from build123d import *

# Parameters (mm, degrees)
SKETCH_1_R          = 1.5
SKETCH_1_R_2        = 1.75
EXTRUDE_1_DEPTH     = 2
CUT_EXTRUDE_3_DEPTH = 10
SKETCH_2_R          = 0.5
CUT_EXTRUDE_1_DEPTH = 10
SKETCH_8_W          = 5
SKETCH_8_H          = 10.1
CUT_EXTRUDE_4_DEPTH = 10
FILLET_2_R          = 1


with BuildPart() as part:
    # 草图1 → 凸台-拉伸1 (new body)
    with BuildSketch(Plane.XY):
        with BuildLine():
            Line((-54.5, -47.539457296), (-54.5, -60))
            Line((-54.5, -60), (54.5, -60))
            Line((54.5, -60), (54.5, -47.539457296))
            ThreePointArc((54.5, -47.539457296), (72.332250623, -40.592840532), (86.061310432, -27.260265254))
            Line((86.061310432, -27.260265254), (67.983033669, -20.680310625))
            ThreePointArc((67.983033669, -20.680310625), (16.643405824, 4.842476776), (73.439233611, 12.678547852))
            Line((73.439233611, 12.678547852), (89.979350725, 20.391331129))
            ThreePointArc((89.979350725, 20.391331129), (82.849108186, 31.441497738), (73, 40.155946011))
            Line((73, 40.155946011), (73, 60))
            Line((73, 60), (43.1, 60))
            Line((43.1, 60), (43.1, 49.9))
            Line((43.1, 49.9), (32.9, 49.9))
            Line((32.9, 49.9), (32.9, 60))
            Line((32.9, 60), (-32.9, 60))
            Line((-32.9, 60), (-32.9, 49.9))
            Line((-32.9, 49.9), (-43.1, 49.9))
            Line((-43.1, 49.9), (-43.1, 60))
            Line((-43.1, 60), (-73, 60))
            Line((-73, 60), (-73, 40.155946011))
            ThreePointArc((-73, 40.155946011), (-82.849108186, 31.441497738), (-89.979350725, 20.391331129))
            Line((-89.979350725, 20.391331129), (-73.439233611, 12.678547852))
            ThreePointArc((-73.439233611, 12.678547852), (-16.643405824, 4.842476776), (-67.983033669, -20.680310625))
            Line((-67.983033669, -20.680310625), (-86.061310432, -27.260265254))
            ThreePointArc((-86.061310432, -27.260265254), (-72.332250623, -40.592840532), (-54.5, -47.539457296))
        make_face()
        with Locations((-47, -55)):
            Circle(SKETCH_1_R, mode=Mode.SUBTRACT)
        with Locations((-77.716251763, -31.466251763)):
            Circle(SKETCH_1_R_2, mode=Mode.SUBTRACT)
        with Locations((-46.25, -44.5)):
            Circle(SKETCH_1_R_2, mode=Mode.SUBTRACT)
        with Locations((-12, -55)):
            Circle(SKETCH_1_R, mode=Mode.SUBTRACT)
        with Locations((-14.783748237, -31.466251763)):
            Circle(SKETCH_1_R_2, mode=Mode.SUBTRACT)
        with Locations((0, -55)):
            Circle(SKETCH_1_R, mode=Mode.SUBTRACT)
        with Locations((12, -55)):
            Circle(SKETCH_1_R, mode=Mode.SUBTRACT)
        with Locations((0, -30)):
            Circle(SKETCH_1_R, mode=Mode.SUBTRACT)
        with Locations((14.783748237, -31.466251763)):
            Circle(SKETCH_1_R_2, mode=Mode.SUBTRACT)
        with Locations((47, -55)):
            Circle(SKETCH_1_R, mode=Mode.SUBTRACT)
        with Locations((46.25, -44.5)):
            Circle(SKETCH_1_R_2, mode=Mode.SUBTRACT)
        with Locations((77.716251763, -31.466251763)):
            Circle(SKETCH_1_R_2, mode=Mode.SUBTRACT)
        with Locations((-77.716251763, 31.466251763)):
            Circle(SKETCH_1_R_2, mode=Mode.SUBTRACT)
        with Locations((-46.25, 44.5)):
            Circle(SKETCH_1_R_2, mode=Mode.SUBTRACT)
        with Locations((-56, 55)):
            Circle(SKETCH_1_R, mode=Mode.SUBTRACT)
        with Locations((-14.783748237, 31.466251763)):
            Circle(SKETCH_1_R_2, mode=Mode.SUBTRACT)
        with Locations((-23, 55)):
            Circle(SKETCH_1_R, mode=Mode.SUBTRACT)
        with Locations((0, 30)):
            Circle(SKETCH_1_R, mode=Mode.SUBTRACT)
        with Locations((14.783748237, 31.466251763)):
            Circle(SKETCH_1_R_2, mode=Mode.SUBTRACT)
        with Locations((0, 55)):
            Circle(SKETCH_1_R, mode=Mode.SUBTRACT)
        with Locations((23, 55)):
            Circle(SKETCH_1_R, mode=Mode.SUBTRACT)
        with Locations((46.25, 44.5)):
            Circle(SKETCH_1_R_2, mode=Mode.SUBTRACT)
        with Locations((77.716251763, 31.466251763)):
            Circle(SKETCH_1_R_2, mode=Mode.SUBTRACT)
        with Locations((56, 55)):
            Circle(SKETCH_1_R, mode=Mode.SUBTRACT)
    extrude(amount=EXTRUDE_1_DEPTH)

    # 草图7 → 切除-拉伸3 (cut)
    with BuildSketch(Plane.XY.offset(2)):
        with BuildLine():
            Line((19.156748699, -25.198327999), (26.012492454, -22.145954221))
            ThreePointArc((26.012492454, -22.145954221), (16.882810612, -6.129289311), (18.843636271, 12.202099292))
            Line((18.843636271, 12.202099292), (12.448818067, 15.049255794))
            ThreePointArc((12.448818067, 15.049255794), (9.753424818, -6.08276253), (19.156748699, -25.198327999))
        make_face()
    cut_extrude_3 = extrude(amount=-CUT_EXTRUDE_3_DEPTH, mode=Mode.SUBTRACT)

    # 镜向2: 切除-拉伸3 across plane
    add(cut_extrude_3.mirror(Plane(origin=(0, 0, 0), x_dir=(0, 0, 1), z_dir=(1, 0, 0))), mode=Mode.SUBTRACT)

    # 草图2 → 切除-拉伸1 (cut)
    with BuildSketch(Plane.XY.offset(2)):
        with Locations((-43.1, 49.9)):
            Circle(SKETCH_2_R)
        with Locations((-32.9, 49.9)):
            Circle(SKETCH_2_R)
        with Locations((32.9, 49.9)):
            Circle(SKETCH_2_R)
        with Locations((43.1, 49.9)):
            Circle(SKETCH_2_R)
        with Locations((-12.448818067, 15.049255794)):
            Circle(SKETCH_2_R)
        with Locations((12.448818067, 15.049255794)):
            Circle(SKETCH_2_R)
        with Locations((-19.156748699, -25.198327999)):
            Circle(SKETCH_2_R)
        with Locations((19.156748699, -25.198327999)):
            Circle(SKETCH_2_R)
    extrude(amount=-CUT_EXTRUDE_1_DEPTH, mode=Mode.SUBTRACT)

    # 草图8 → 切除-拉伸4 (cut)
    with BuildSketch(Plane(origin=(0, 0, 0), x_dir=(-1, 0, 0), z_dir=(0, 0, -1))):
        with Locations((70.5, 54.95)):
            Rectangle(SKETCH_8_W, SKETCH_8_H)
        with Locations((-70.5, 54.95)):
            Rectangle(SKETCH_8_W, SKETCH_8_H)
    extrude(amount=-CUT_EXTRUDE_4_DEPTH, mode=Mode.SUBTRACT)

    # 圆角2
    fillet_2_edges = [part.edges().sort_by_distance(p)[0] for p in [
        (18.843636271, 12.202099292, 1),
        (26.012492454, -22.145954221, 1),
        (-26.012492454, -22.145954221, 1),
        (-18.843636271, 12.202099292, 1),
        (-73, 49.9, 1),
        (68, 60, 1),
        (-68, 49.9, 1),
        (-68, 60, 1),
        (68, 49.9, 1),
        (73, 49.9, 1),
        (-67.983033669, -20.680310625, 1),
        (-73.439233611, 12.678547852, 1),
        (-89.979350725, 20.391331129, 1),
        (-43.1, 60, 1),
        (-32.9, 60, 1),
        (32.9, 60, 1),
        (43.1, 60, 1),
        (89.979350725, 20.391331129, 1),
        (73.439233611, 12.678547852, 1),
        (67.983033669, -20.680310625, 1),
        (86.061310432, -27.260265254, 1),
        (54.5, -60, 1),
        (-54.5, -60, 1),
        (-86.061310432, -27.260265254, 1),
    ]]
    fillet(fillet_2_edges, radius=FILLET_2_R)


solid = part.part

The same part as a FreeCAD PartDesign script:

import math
import FreeCAD as App
import Part
import Sketcher

V = App.Vector
Q = App.Units.Quantity


def edges_at(feature, points):
    """Names of the edges that pass closest to the given points."""
    edges = feature.Shape.Edges
    near = lambda p: min(range(len(edges)), key=lambda i: edges[i].distToShape(Part.Vertex(*p))[0])
    return sorted({f"Edge{near(p) + 1}" for p in points})

doc = App.newDocument("Part")
params = doc.addObject("Spreadsheet::Sheet", "Params")
for row, (alias, value) in enumerate([
    ("sketch1_diameter", "3 mm"),
    ("sketch1_radius", "30 mm"),
    ("sketch1_diameter2", "3.5 mm"),
    ("sketch1_width", "109 mm"),
    ("sketch1_radius2", "48.25 mm"),
    ("pad1_length", "2 mm"),
    ("sketch2_radius", "30 mm"),
    ("sketch2_radius2", "37 mm"),
    ("pocket1_length", "10 mm"),
    ("sketch3_diameter", "1 mm"),
    ("pocket2_length", "10 mm"),
    ("sketch4_width", "5 mm"),
    ("sketch4_height", "10.1 mm"),
    ("pocket3_length", "10 mm"),
    ("fillet_radius", "1 mm"),
], start=1):
    params.set(f"A{row}", alias)
    params.set(f"B{row}", "=" + value)
    params.setAlias(f"B{row}", alias)

body = doc.addObject("PartDesign::Body", "Body")

# Sketch on XY plane
sketch1 = body.newObject("Sketcher::SketchObject", "Sketch")
sketch1.AttachmentSupport = (doc.getObject("XY_Plane"), [""])
sketch1.MapMode = "FlatFace"
sketch1.addGeometry([
    Part.LineSegment(V(-54.5, -47.539457, 0), V(-54.5, -60, 0)),  # 0
    Part.LineSegment(V(-54.5, -60, 0), V(54.5, -60, 0)),  # 1
    Part.LineSegment(V(54.5, -60, 0), V(54.5, -47.539457, 0)),  # 2
    Part.ArcOfCircle(Part.Circle(V(46.25, 0, 0), V(0, 0, 1), 48.25), math.radians(-80.154938), math.radians(-34.400874)),  # 3
    Part.LineSegment(V(86.06131, -27.260265, 0), V(67.983034, -20.680311, 0)),  # 4
    Part.ArcOfCircle(Part.Circle(V(46.25, 0, 0), V(0, 0, 1), 30), math.radians(25), math.radians(316.421822)),  # 5
    Part.LineSegment(V(73.439234, 12.678548, 0), V(89.979351, 20.391331, 0)),  # 6
    Part.ArcOfCircle(Part.Circle(V(46.25, 0, 0), V(0, 0, 1), 48.25), math.radians(25), math.radians(56.330316)),  # 7
    Part.LineSegment(V(73, 40.155946, 0), V(73, 60, 0)),  # 8
    Part.LineSegment(V(73, 60, 0), V(43.1, 60, 0)),  # 9
    Part.LineSegment(V(43.1, 60, 0), V(43.1, 49.9, 0)),  # 10
    Part.LineSegment(V(43.1, 49.9, 0), V(32.9, 49.9, 0)),  # 11
    Part.LineSegment(V(32.9, 49.9, 0), V(32.9, 60, 0)),  # 12
    Part.LineSegment(V(32.9, 60, 0), V(-32.9, 60, 0)),  # 13
    Part.LineSegment(V(-32.9, 60, 0), V(-32.9, 49.9, 0)),  # 14
    Part.LineSegment(V(-32.9, 49.9, 0), V(-43.1, 49.9, 0)),  # 15
    Part.LineSegment(V(-43.1, 49.9, 0), V(-43.1, 60, 0)),  # 16
    Part.LineSegment(V(-43.1, 60, 0), V(-73, 60, 0)),  # 17
    Part.LineSegment(V(-73, 60, 0), V(-73, 40.155946, 0)),  # 18
    Part.ArcOfCircle(Part.Circle(V(-46.25, 0, 0), V(0, 0, 1), 48.25), math.radians(123.669684), math.radians(155)),  # 19
    Part.LineSegment(V(-89.979351, 20.391331, 0), V(-73.439234, 12.678548, 0)),  # 20
    Part.ArcOfCircle(Part.Circle(V(-46.25, 0, 0), V(0, 0, 1), 30), math.radians(-136.421822), math.radians(155)),  # 21
    Part.LineSegment(V(-67.983034, -20.680311, 0), V(-86.06131, -27.260265, 0)),  # 22
    Part.ArcOfCircle(Part.Circle(V(-46.25, 0, 0), V(0, 0, 1), 48.25), math.radians(-145.599126), math.radians(-99.845062)),  # 23
    Part.Circle(V(-47, -55, 0), V(0, 0, 1), 1.5),  # 24
    Part.Circle(V(-46.25, -44.5, 0), V(0, 0, 1), 1.75),  # 25
    Part.Circle(V(-77.716252, -31.466252, 0), V(0, 0, 1), 1.75),  # 26
    Part.Circle(V(-12, -55, 0), V(0, 0, 1), 1.5),  # 27
    Part.Circle(V(-14.783748, -31.466252, 0), V(0, 0, 1), 1.75),  # 28
    Part.Circle(V(0, -55, 0), V(0, 0, 1), 1.5),  # 29
    Part.Circle(V(12, -55, 0), V(0, 0, 1), 1.5),  # 30
    Part.Circle(V(0, -30, 0), V(0, 0, 1), 1.5),  # 31
    Part.Circle(V(14.783748, -31.466252, 0), V(0, 0, 1), 1.75),  # 32
    Part.Circle(V(47, -55, 0), V(0, 0, 1), 1.5),  # 33
    Part.Circle(V(46.25, -44.5, 0), V(0, 0, 1), 1.75),  # 34
    Part.Circle(V(77.716252, -31.466252, 0), V(0, 0, 1), 1.75),  # 35
    Part.Circle(V(-77.716252, 31.466252, 0), V(0, 0, 1), 1.75),  # 36
    Part.Circle(V(-46.25, 44.5, 0), V(0, 0, 1), 1.75),  # 37
    Part.Circle(V(-56, 55, 0), V(0, 0, 1), 1.5),  # 38
    Part.Circle(V(-14.783748, 31.466252, 0), V(0, 0, 1), 1.75),  # 39
    Part.Circle(V(-23, 55, 0), V(0, 0, 1), 1.5),  # 40
    Part.Circle(V(0, 30, 0), V(0, 0, 1), 1.5),  # 41
    Part.Circle(V(14.783748, 31.466252, 0), V(0, 0, 1), 1.75),  # 42
    Part.Circle(V(0, 55, 0), V(0, 0, 1), 1.5),  # 43
    Part.Circle(V(23, 55, 0), V(0, 0, 1), 1.5),  # 44
    Part.Circle(V(77.716252, 31.466252, 0), V(0, 0, 1), 1.75),  # 45
    Part.Circle(V(46.25, 44.5, 0), V(0, 0, 1), 1.75),  # 46
    Part.Circle(V(56, 55, 0), V(0, 0, 1), 1.5),  # 47
], False)
sketch1.addConstraint([
    Sketcher.Constraint("Coincident", 0, 2, 1, 1),
    Sketcher.Constraint("Coincident", 1, 2, 2, 1),
    Sketcher.Constraint("Coincident", 2, 2, 3, 1),
    Sketcher.Constraint("Coincident", 3, 2, 4, 1),
    Sketcher.Constraint("Coincident", 4, 2, 5, 2),
    Sketcher.Constraint("Coincident", 5, 1, 6, 1),
    Sketcher.Constraint("Coincident", 6, 2, 7, 1),
    Sketcher.Constraint("Coincident", 7, 2, 8, 1),
    Sketcher.Constraint("Coincident", 8, 2, 9, 1),
    Sketcher.Constraint("Coincident", 9, 2, 10, 1),
    Sketcher.Constraint("Coincident", 10, 2, 11, 1),
    Sketcher.Constraint("Coincident", 11, 2, 12, 1),
    Sketcher.Constraint("Coincident", 12, 2, 13, 1),
    Sketcher.Constraint("Coincident", 13, 2, 14, 1),
    Sketcher.Constraint("Coincident", 14, 2, 15, 1),
    Sketcher.Constraint("Coincident", 15, 2, 16, 1),
    Sketcher.Constraint("Coincident", 16, 2, 17, 1),
    Sketcher.Constraint("Coincident", 17, 2, 18, 1),
    Sketcher.Constraint("Coincident", 18, 2, 19, 1),
    Sketcher.Constraint("Coincident", 19, 2, 20, 1),
    Sketcher.Constraint("Coincident", 20, 2, 21, 2),
    Sketcher.Constraint("Coincident", 21, 1, 22, 1),
    Sketcher.Constraint("Coincident", 22, 2, 23, 1),
    Sketcher.Constraint("Coincident", 23, 2, 0, 1),
    Sketcher.Constraint("Vertical", 0),
    Sketcher.Constraint("Horizontal", 1),
    Sketcher.Constraint("Vertical", 2),
    Sketcher.Constraint("Vertical", 8),
    Sketcher.Constraint("Horizontal", 9),
    Sketcher.Constraint("Vertical", 10),
    Sketcher.Constraint("Horizontal", 11),
    Sketcher.Constraint("Vertical", 12),
    Sketcher.Constraint("Horizontal", 13),
    Sketcher.Constraint("Vertical", 14),
    Sketcher.Constraint("Horizontal", 15),
    Sketcher.Constraint("Vertical", 16),
    Sketcher.Constraint("Horizontal", 17),
    Sketcher.Constraint("Vertical", 18),
    Sketcher.Constraint("Coincident", 5, 3, 3, 3),
    Sketcher.Constraint("Coincident", 7, 3, 3, 3),
    Sketcher.Constraint("Coincident", 21, 3, 19, 3),
    Sketcher.Constraint("Coincident", 23, 3, 19, 3),
    Sketcher.Constraint("Equal", 3, 7),
    Sketcher.Constraint("Equal", 7, 19),
    Sketcher.Constraint("Equal", 5, 21),
    Sketcher.Constraint("Equal", 19, 23),
    Sketcher.Constraint("Equal", 25, 26),
    Sketcher.Constraint("Equal", 24, 27),
    Sketcher.Constraint("Equal", 26, 28),
    Sketcher.Constraint("Equal", 27, 29),
    Sketcher.Constraint("Equal", 29, 30),
    Sketcher.Constraint("Equal", 30, 31),
    Sketcher.Constraint("Equal", 28, 32),
    Sketcher.Constraint("Equal", 31, 33),
    Sketcher.Constraint("Equal", 32, 34),
    Sketcher.Constraint("Equal", 34, 35),
    Sketcher.Constraint("Equal", 35, 36),
    Sketcher.Constraint("Equal", 36, 37),
    Sketcher.Constraint("Equal", 33, 38),
    Sketcher.Constraint("Equal", 37, 39),
    Sketcher.Constraint("Equal", 38, 40),
    Sketcher.Constraint("Equal", 40, 41),
    Sketcher.Constraint("Equal", 39, 42),
    Sketcher.Constraint("Equal", 41, 43),
    Sketcher.Constraint("Equal", 43, 44),
    Sketcher.Constraint("Equal", 42, 45),
    Sketcher.Constraint("Equal", 45, 46),
    Sketcher.Constraint("Equal", 44, 47),
    Sketcher.Constraint("Symmetric", 3, 3, 19, 3, -1, 1),
    Sketcher.Constraint("Symmetric", 35, 3, 36, 3, -1, 1),
    Sketcher.Constraint("Symmetric", 34, 3, 37, 3, -1, 1),
    Sketcher.Constraint("Symmetric", 32, 3, 39, 3, -1, 1),
    Sketcher.Constraint("Symmetric", 31, 3, 41, 3, -1, 1),
    Sketcher.Constraint("Symmetric", 28, 3, 42, 3, -1, 1),
    Sketcher.Constraint("Symmetric", 29, 3, 43, 3, -1, 1),
    Sketcher.Constraint("Symmetric", 26, 3, 45, 3, -1, 1),
    Sketcher.Constraint("Symmetric", 25, 3, 46, 3, -1, 1),
    Sketcher.Constraint("Symmetric", 27, 3, 30, 3, -2),
    Sketcher.Constraint("Symmetric", 28, 3, 32, 3, -2),
    Sketcher.Constraint("Symmetric", 24, 3, 33, 3, -2),
    Sketcher.Constraint("Symmetric", 25, 3, 34, 3, -2),
    Sketcher.Constraint("Symmetric", 26, 3, 35, 3, -2),
    Sketcher.Constraint("Symmetric", 40, 3, 44, 3, -2),
    Sketcher.Constraint("Symmetric", 38, 3, 47, 3, -2),
    Sketcher.Constraint("Symmetric", 11, 2, 14, 2, -2),
    Sketcher.Constraint("Symmetric", 9, 2, 16, 2, -2),
    Sketcher.Constraint("Symmetric", 7, 2, 18, 2, -2),
    Sketcher.Constraint("PointOnObject", 29, 3, -2),
    Sketcher.Constraint("PointOnObject", 31, 3, -2),
    Sketcher.Constraint("Horizontal", 24, 3, 27, 3),
    Sketcher.Constraint("Horizontal", 26, 3, 28, 3),
    Sketcher.Constraint("Horizontal", 27, 3, 29, 3),
    Sketcher.Constraint("Horizontal", 38, 3, 40, 3),
    Sketcher.Constraint("Horizontal", 40, 3, 43, 3),
    Sketcher.Constraint("Horizontal", 9, 2, 12, 2),
    Sketcher.Constraint("Horizontal", 6, 2, 19, 2),
    Sketcher.Constraint("Horizontal", 5, 1, 20, 2),
    Sketcher.Constraint("Horizontal", 4, 2, 21, 1),
    Sketcher.Constraint("Horizontal", 3, 2, 22, 2),
    Sketcher.Constraint("Horizontal", 2, 2, 23, 2),
    Sketcher.Constraint("Vertical", 23, 3, 25, 3),
    Sketcher.Constraint("Diameter", 24, 3.0),
    Sketcher.Constraint("Radius", 5, 30.0),
    Sketcher.Constraint("Diameter", 25, 3.5),
    Sketcher.Constraint("DistanceX", 1, 1, 1, 2, 109.0),
    Sketcher.Constraint("Angle", 4, Q("160 deg")),
    Sketcher.Constraint("Angle", 6, Q("25 deg")),
    Sketcher.Constraint("Radius", 3, 48.25),
    Sketcher.Constraint("DistanceX", 9, 2, 9, 1, 29.9),
    Sketcher.Constraint("DistanceX", 11, 2, 11, 1, 10.2),
    Sketcher.Constraint("DistanceX", 13, 2, 13, 1, 65.8),
    Sketcher.Constraint("DistanceY", 10, 2, 10, 1, 10.1),
    Sketcher.Constraint("DistanceX", 24, 3, -1, 1, 47.0),
    Sketcher.Constraint("DistanceY", 24, 3, -1, 1, 55.0),
    Sketcher.Constraint("DistanceX", 27, 3, -1, 1, 12.0),
    Sketcher.Constraint("DistanceY", 31, 3, -1, 1, 30.0),
    Sketcher.Constraint("DistanceX", 38, 3, -1, 1, 56.0),
    Sketcher.Constraint("DistanceX", 40, 3, -1, 1, 23.0),
    Sketcher.Constraint("DistanceY", 0, 2, -1, 1, 60.0),
    Sketcher.Constraint("DistanceY", -1, 1, 8, 2, 60.0),
    Sketcher.Constraint("DistanceY", 25, 3, -1, 1, 44.5),
    Sketcher.Constraint("DistanceX", 19, 3, 7, 3, 92.5),
    Sketcher.Constraint("Distance", 4, 19.2385),
    Sketcher.Constraint("DistanceX", 4, 2, 5, 1, 5.4562),
    Sketcher.Constraint("DistanceX", 45, 3, 6, 2, 12.263099),
    Sketcher.Constraint("DistanceY", 26, 3, -1, 1, 31.466252),
    Sketcher.Constraint("DistanceX", 28, 3, -1, 1, 14.783748),
])
sketch1.setExpression("Constraints[101]", "Params.sketch1_diameter")
sketch1.setExpression("Constraints[102]", "Params.sketch1_radius")
sketch1.setExpression("Constraints[103]", "Params.sketch1_diameter2")
sketch1.setExpression("Constraints[104]", "Params.sketch1_width")
sketch1.setExpression("Constraints[107]", "Params.sketch1_radius2")
pad1 = body.newObject("PartDesign::Pad", "Pad")
pad1.Profile = sketch1
pad1.setExpression("Length", "Params.pad1_length")

# Sketch on XY plane
sketch2 = body.newObject("Sketcher::SketchObject", "Sketch001")
sketch2.AttachmentSupport = (doc.getObject("XY_Plane"), [""])
sketch2.MapMode = "FlatFace"
sketch2.AttachmentOffset = App.Placement(V(0, 0, 2), App.Rotation())
sketch2.addGeometry([
    Part.LineSegment(V(19.156749, -25.198328, 0), V(26.012492, -22.145954, 0)),
    Part.ArcOfCircle(Part.Circle(V(46.25, 0, 0), V(0, 0, 1), 30), math.radians(156), math.radians(227.578178)),
    Part.LineSegment(V(18.843636, 12.202099, 0), V(12.448818, 15.049256, 0)),
    Part.ArcOfCircle(Part.Circle(V(46.25, 0, 0), V(0, 0, 1), 37), math.radians(156), math.radians(222.924644)),
], False)
sketch2.addConstraint([
    Sketcher.Constraint("Coincident", 0, 2, 1, 2),
    Sketcher.Constraint("Coincident", 1, 1, 2, 1),
    Sketcher.Constraint("Coincident", 2, 2, 3, 1),
    Sketcher.Constraint("Coincident", 3, 2, 0, 1),
    Sketcher.Constraint("Coincident", 3, 3, 1, 3),
    Sketcher.Constraint("PointOnObject", 1, 3, -1),
    Sketcher.Constraint("Radius", 1, 30.0),
    Sketcher.Constraint("Radius", 3, 37.0),
    Sketcher.Constraint("Angle", 0, Q("24 deg")),
    Sketcher.Constraint("Angle", 2, Q("156 deg")),
    Sketcher.Constraint("DistanceX", -1, 1, 1, 3, 46.25),
    Sketcher.Constraint("DistanceY", -1, 1, 1, 1, 12.202099),
    Sketcher.Constraint("DistanceX", -1, 1, 3, 2, 19.156749),
])
sketch2.setExpression("Constraints[6]", "Params.sketch2_radius")
sketch2.setExpression("Constraints[7]", "Params.sketch2_radius2")
pocket1 = body.newObject("PartDesign::Pocket", "Pocket")
pocket1.Profile = sketch2
pocket1.setExpression("Length", "Params.pocket1_length")
doc.recompute()

mirrored = body.newObject("PartDesign::Mirrored", "Mirrored")
mirrored.Originals = [pocket1]
mirrored.MirrorPlane = (doc.getObject("YZ_Plane"), [""])
body.Tip = mirrored

# Sketch on XY plane
sketch3 = body.newObject("Sketcher::SketchObject", "Sketch002")
sketch3.AttachmentSupport = (doc.getObject("XY_Plane"), [""])
sketch3.MapMode = "FlatFace"
sketch3.AttachmentOffset = App.Placement(V(0, 0, 2), App.Rotation())
sketch3.addGeometry([
    Part.Circle(V(-43.1, 49.9, 0), V(0, 0, 1), 0.5),  # 0
    Part.Circle(V(-32.9, 49.9, 0), V(0, 0, 1), 0.5),  # 1
    Part.Circle(V(32.9, 49.9, 0), V(0, 0, 1), 0.5),  # 2
    Part.Circle(V(43.1, 49.9, 0), V(0, 0, 1), 0.5),  # 3
    Part.Circle(V(-12.448818, 15.049256, 0), V(0, 0, 1), 0.5),  # 4
    Part.Circle(V(12.448818, 15.049256, 0), V(0, 0, 1), 0.5),  # 5
    Part.Circle(V(-19.156749, -25.198328, 0), V(0, 0, 1), 0.5),  # 6
    Part.Circle(V(19.156749, -25.198328, 0), V(0, 0, 1), 0.5),  # 7
], False)
sketch3.addConstraint([
    Sketcher.Constraint("Equal", 0, 1),
    Sketcher.Constraint("Equal", 1, 2),
    Sketcher.Constraint("Equal", 2, 3),
    Sketcher.Constraint("Equal", 3, 4),
    Sketcher.Constraint("Equal", 4, 5),
    Sketcher.Constraint("Equal", 5, 6),
    Sketcher.Constraint("Equal", 6, 7),
    Sketcher.Constraint("Symmetric", 1, 3, 2, 3, -2),
    Sketcher.Constraint("Symmetric", 0, 3, 3, 3, -2),
    Sketcher.Constraint("Symmetric", 4, 3, 5, 3, -2),
    Sketcher.Constraint("Symmetric", 6, 3, 7, 3, -2),
    Sketcher.Constraint("Horizontal", 0, 3, 1, 3),
    Sketcher.Constraint("Diameter", 0, 1.0),
    Sketcher.Constraint("DistanceX", 0, 3, 2, 3, 76.0),
    Sketcher.Constraint("DistanceX", 0, 3, -1, 1, 43.1),
    Sketcher.Constraint("DistanceY", -1, 1, 0, 3, 49.9),
    Sketcher.Constraint("DistanceX", 4, 3, -1, 1, 12.448818),
    Sketcher.Constraint("DistanceX", 6, 3, -1, 1, 19.156749),
    Sketcher.Constraint("DistanceY", -1, 1, 4, 3, 15.049256),
    Sketcher.Constraint("DistanceY", 6, 3, -1, 1, 25.198328),
])
sketch3.setExpression("Constraints[12]", "Params.sketch3_diameter")
pocket2 = body.newObject("PartDesign::Pocket", "Pocket001")
pocket2.Profile = sketch3
pocket2.setExpression("Length", "Params.pocket2_length")

# Sketch on XY plane
sketch4 = body.newObject("Sketcher::SketchObject", "Sketch003")
sketch4.AttachmentSupport = (doc.getObject("XY_Plane"), [""])
sketch4.MapMode = "FlatFace"
sketch4.addGeometry([
    Part.LineSegment(V(-68, 60, 0), V(-68, 49.9, 0)),  # 0
    Part.LineSegment(V(-68, 49.9, 0), V(-73, 49.9, 0)),  # 1
    Part.LineSegment(V(-73, 49.9, 0), V(-73, 60, 0)),  # 2
    Part.LineSegment(V(-73, 60, 0), V(-68, 60, 0)),  # 3
    Part.LineSegment(V(73, 60, 0), V(73, 49.9, 0)),  # 4
    Part.LineSegment(V(73, 49.9, 0), V(68, 49.9, 0)),  # 5
    Part.LineSegment(V(68, 49.9, 0), V(68, 60, 0)),  # 6
    Part.LineSegment(V(68, 60, 0), V(73, 60, 0)),  # 7
], False)
sketch4.addConstraint([
    Sketcher.Constraint("Coincident", 0, 2, 1, 1),
    Sketcher.Constraint("Coincident", 1, 2, 2, 1),
    Sketcher.Constraint("Coincident", 2, 2, 3, 1),
    Sketcher.Constraint("Coincident", 3, 2, 0, 1),
    Sketcher.Constraint("Coincident", 4, 2, 5, 1),
    Sketcher.Constraint("Coincident", 5, 2, 6, 1),
    Sketcher.Constraint("Coincident", 6, 2, 7, 1),
    Sketcher.Constraint("Coincident", 7, 2, 4, 1),
    Sketcher.Constraint("Vertical", 0),
    Sketcher.Constraint("Horizontal", 1),
    Sketcher.Constraint("Vertical", 2),
    Sketcher.Constraint("Horizontal", 3),
    Sketcher.Constraint("Vertical", 4),
    Sketcher.Constraint("Horizontal", 5),
    Sketcher.Constraint("Vertical", 6),
    Sketcher.Constraint("Horizontal", 7),
    Sketcher.Constraint("Symmetric", 1, 2, 4, 2, -2),
    Sketcher.Constraint("Symmetric", 3, 2, 6, 2, -2),
    Sketcher.Constraint("DistanceX", 1, 2, 1, 1, 5.0),
    Sketcher.Constraint("DistanceY", 0, 2, 0, 1, 10.1),
    Sketcher.Constraint("DistanceX", 0, 2, -1, 1, 68.0),
    Sketcher.Constraint("DistanceY", -1, 1, 2, 2, 60.0),
])
sketch4.setExpression("Constraints[18]", "Params.sketch4_width")
sketch4.setExpression("Constraints[19]", "Params.sketch4_height")
pocket3 = body.newObject("PartDesign::Pocket", "Pocket002")
pocket3.Profile = sketch4
pocket3.setExpression("Length", "Params.pocket3_length")
pocket3.Reversed = True
doc.recompute()

fillet = body.newObject("PartDesign::Fillet", "Fillet")
fillet.Base = (pocket3, edges_at(pocket3, [
    (18.844, 12.202, 1),
    (26.012, -22.146, 1),
    (-26.012, -22.146, 1),
    (-18.844, 12.202, 1),
    (-73, 49.9, 1),
    (68, 60, 1),
    (-68, 49.9, 1),
    (-68, 60, 1),
    (68, 49.9, 1),
    (73, 49.9, 1),
    (-67.983, -20.68, 1),
    (-73.439, 12.679, 1),
    (-89.979, 20.391, 1),
    (-43.1, 60, 1),
    (-32.9, 60, 1),
    (32.9, 60, 1),
    (43.1, 60, 1),
    (89.979, 20.391, 1),
    (73.439, 12.679, 1),
    (67.983, -20.68, 1),
    (86.061, -27.26, 1),
    (54.5, -60, 1),
    (-54.5, -60, 1),
    (-86.061, -27.26, 1),
]))
fillet.setExpression("Radius", "Params.fillet_radius")

doc.recompute()
